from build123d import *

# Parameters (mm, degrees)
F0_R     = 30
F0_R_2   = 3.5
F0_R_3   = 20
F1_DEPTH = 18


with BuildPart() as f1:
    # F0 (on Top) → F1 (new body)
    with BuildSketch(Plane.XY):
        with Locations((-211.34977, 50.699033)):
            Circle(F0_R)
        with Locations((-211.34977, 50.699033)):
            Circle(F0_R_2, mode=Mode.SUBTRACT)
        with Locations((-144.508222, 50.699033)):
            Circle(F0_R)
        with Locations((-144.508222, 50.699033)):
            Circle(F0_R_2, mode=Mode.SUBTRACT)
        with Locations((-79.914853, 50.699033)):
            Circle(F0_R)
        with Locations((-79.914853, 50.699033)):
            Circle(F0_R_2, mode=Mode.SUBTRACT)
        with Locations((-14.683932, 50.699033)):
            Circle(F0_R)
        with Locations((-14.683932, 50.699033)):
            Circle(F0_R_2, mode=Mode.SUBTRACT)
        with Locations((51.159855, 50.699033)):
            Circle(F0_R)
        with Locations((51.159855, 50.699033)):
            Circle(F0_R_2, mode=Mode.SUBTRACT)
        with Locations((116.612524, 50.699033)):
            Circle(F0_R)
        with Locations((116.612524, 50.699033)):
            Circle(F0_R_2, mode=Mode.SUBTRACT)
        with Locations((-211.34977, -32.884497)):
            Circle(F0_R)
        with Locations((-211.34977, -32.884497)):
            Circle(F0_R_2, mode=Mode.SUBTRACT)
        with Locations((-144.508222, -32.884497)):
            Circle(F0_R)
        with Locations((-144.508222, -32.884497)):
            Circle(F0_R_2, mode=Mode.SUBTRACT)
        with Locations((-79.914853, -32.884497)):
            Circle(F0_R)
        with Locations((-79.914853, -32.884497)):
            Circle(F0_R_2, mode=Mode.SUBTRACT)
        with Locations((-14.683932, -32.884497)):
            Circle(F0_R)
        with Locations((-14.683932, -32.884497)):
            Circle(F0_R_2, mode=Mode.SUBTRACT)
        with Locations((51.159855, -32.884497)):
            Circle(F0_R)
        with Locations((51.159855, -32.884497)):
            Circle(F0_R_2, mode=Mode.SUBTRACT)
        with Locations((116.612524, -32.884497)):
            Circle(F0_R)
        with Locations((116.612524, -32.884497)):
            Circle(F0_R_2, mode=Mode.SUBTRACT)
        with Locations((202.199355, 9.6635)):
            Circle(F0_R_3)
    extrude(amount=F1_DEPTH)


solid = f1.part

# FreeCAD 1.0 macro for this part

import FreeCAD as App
import Part
import Sketcher
from FreeCAD import Vector

doc = App.newDocument("Part")
body = doc.addObject("PartDesign::Body", "Body")
body.AllowCompound = True

sketch1 = body.newObject("Sketcher::SketchObject", "Sketch")
sketch1.AttachmentSupport = (doc.getObject("XY_Plane"), [""])
sketch1.MapMode = "FlatFace"
sketch1.addGeometry(Part.Circle(Vector(-211.34977, 50.699033, 0), Vector(0, 0, 1), 30), False)
sketch1.addGeometry(Part.Circle(Vector(-211.34977, 50.699033, 0), Vector(0, 0, 1), 3.5), False)
sketch1.addGeometry(Part.Circle(Vector(-144.508222, 50.699033, 0), Vector(0, 0, 1), 30), False)
sketch1.addGeometry(Part.Circle(Vector(-144.508222, 50.699033, 0), Vector(0, 0, 1), 3.5), False)
sketch1.addGeometry(Part.Circle(Vector(-79.914853, 50.699033, 0), Vector(0, 0, 1), 30), False)
sketch1.addGeometry(Part.Circle(Vector(-79.914853, 50.699033, 0), Vector(0, 0, 1), 3.5), False)
sketch1.addGeometry(Part.Circle(Vector(-14.683932, 50.699033, 0), Vector(0, 0, 1), 30), False)
sketch1.addGeometry(Part.Circle(Vector(-14.683932, 50.699033, 0), Vector(0, 0, 1), 3.5), False)
sketch1.addGeometry(Part.Circle(Vector(51.159855, 50.699033, 0), Vector(0, 0, 1), 30), False)
sketch1.addGeometry(Part.Circle(Vector(51.159855, 50.699033, 0), Vector(0, 0, 1), 3.5), False)
sketch1.addGeometry(Part.Circle(Vector(116.612524, 50.699033, 0), Vector(0, 0, 1), 30), False)
sketch1.addGeometry(Part.Circle(Vector(116.612524, 50.699033, 0), Vector(0, 0, 1), 3.5), False)
sketch1.addGeometry(Part.Circle(Vector(-211.34977, -32.884497, 0), Vector(0, 0, 1), 30), False)
sketch1.addGeometry(Part.Circle(Vector(-211.34977, -32.884497, 0), Vector(0, 0, 1), 3.5), False)
sketch1.addGeometry(Part.Circle(Vector(-144.508222, -32.884497, 0), Vector(0, 0, 1), 30), False)
sketch1.addGeometry(Part.Circle(Vector(-144.508222, -32.884497, 0), Vector(0, 0, 1), 3.5), False)
sketch1.addGeometry(Part.Circle(Vector(-79.914853, -32.884497, 0), Vector(0, 0, 1), 30), False)
sketch1.addGeometry(Part.Circle(Vector(-79.914853, -32.884497, 0), Vector(0, 0, 1), 3.5), False)
sketch1.addGeometry(Part.Circle(Vector(-14.683932, -32.884497, 0), Vector(0, 0, 1), 30), False)
sketch1.addGeometry(Part.Circle(Vector(-14.683932, -32.884497, 0), Vector(0, 0, 1), 3.5), False)
sketch1.addGeometry(Part.Circle(Vector(51.159855, -32.884497, 0), Vector(0, 0, 1), 30), False)
sketch1.addGeometry(Part.Circle(Vector(51.159855, -32.884497, 0), Vector(0, 0, 1), 3.5), False)
sketch1.addGeometry(Part.Circle(Vector(116.612524, -32.884497, 0), Vector(0, 0, 1), 30), False)
sketch1.addGeometry(Part.Circle(Vector(116.612524, -32.884497, 0), Vector(0, 0, 1), 3.5), False)
sketch1.addGeometry(Part.Circle(Vector(202.199355, 9.6635, 0), Vector(0, 0, 1), 20), False)
sketch1.addConstraint(Sketcher.Constraint("Coincident", 1, 3, 0, 3))
sketch1.addConstraint(Sketcher.Constraint("Coincident", 3, 3, 2, 3))
sketch1.addConstraint(Sketcher.Constraint("Coincident", 5, 3, 4, 3))
sketch1.addConstraint(Sketcher.Constraint("Coincident", 7, 3, 6, 3))
sketch1.addConstraint(Sketcher.Constraint("Coincident", 9, 3, 8, 3))
sketch1.addConstraint(Sketcher.Constraint("Coincident", 11, 3, 10, 3))
sketch1.addConstraint(Sketcher.Constraint("Coincident", 13, 3, 12, 3))
sketch1.addConstraint(Sketcher.Constraint("Coincident", 15, 3, 14, 3))
sketch1.addConstraint(Sketcher.Constraint("Coincident", 17, 3, 16, 3))
sketch1.addConstraint(Sketcher.Constraint("Coincident", 19, 3, 18, 3))
sketch1.addConstraint(Sketcher.Constraint("Coincident", 21, 3, 20, 3))
sketch1.addConstraint(Sketcher.Constraint("Coincident", 23, 3, 22, 3))
sketch1.addConstraint(Sketcher.Constraint("Equal", 0, 2))
sketch1.addConstraint(Sketcher.Constraint("Equal", 1, 3))
sketch1.addConstraint(Sketcher.Constraint("Equal", 2, 4))
sketch1.addConstraint(Sketcher.Constraint("Equal", 3, 5))
sketch1.addConstraint(Sketcher.Constraint("Equal", 4, 6))
sketch1.addConstraint(Sketcher.Constraint("Equal", 5, 7))
sketch1.addConstraint(Sketcher.Constraint("Equal", 6, 8))
sketch1.addConstraint(Sketcher.Constraint("Equal", 7, 9))
sketch1.addConstraint(Sketcher.Constraint("Equal", 8, 10))
sketch1.addConstraint(Sketcher.Constraint("Equal", 9, 11))
sketch1.addConstraint(Sketcher.Constraint("Equal", 10, 12))
sketch1.addConstraint(Sketcher.Constraint("Equal", 11, 13))
sketch1.addConstraint(Sketcher.Constraint("Equal", 12, 14))
sketch1.addConstraint(Sketcher.Constraint("Equal", 13, 15))
sketch1.addConstraint(Sketcher.Constraint("Equal", 14, 16))
sketch1.addConstraint(Sketcher.Constraint("Equal", 15, 17))
sketch1.addConstraint(Sketcher.Constraint("Equal", 16, 18))
sketch1.addConstraint(Sketcher.Constraint("Equal", 17, 19))
sketch1.addConstraint(Sketcher.Constraint("Equal", 18, 20))
sketch1.addConstraint(Sketcher.Constraint("Equal", 19, 21))
sketch1.addConstraint(Sketcher.Constraint("Equal", 20, 22))
sketch1.addConstraint(Sketcher.Constraint("Equal", 21, 23))
sketch1.addConstraint(Sketcher.Constraint("Horizontal", 1, 3, 2, 3))
sketch1.addConstraint(Sketcher.Constraint("Horizontal", 3, 3, 4, 3))
sketch1.addConstraint(Sketcher.Constraint("Horizontal", 5, 3, 6, 3))
sketch1.addConstraint(Sketcher.Constraint("Horizontal", 7, 3, 8, 3))
sketch1.addConstraint(Sketcher.Constraint("Horizontal", 9, 3, 10, 3))
sketch1.addConstraint(Sketcher.Constraint("Horizontal", 13, 3, 14, 3))
sketch1.addConstraint(Sketcher.Constraint("Horizontal", 15, 3, 16, 3))
sketch1.addConstraint(Sketcher.Constraint("Horizontal", 17, 3, 18, 3))
sketch1.addConstraint(Sketcher.Constraint("Horizontal", 19, 3, 20, 3))
sketch1.addConstraint(Sketcher.Constraint("Horizontal", 21, 3, 22, 3))
sketch1.addConstraint(Sketcher.Constraint("Vertical", 1, 3, 12, 3))
sketch1.addConstraint(Sketcher.Constraint("Vertical", 3, 3, 14, 3))
sketch1.addConstraint(Sketcher.Constraint("Vertical", 5, 3, 16, 3))
sketch1.addConstraint(Sketcher.Constraint("Vertical", 7, 3, 18, 3))
sketch1.addConstraint(Sketcher.Constraint("Vertical", 9, 3, 20, 3))
sketch1.addConstraint(Sketcher.Constraint("Vertical", 11, 3, 22, 3))
sketch1.addConstraint(Sketcher.Constraint("Diameter", 0, 60.0))
sketch1.addConstraint(Sketcher.Constraint("Diameter", 1, 7.0))
sketch1.addConstraint(Sketcher.Constraint("Diameter", 24, 40.0))
sketch1.addConstraint(Sketcher.Constraint("DistanceY", -1, 1, 24, 3, 9.6635))
sketch1.addConstraint(Sketcher.Constraint("DistanceX", 8, 3, 24, 3, 151.0395))
sketch1.addConstraint(Sketcher.Constraint("DistanceX", 0, 3, -1, 1, 211.34977))
sketch1.addConstraint(Sketcher.Constraint("DistanceX", 2, 3, -1, 1, 144.508222))
sketch1.addConstraint(Sketcher.Constraint("DistanceX", 2, 3, 4, 3, 64.593369))
sketch1.addConstraint(Sketcher.Constraint("DistanceX", 4, 3, 6, 3, 65.230921))
sketch1.addConstraint(Sketcher.Constraint("DistanceX", 8, 3, 10, 3, 65.452669))
sketch1.addConstraint(Sketcher.Constraint("DistanceY", 12, 3, 0, 3, 83.58353))
sketch1.addConstraint(Sketcher.Constraint("DistanceY", -1, 1, 0, 3, 50.699033))
sketch1.addConstraint(Sketcher.Constraint("DistanceX", -1, 1, 8, 3, 51.159855))
pad1 = body.newObject("PartDesign::Pad", "Pad")
pad1.Profile = sketch1
pad1.Length = 18

doc.recompute()
